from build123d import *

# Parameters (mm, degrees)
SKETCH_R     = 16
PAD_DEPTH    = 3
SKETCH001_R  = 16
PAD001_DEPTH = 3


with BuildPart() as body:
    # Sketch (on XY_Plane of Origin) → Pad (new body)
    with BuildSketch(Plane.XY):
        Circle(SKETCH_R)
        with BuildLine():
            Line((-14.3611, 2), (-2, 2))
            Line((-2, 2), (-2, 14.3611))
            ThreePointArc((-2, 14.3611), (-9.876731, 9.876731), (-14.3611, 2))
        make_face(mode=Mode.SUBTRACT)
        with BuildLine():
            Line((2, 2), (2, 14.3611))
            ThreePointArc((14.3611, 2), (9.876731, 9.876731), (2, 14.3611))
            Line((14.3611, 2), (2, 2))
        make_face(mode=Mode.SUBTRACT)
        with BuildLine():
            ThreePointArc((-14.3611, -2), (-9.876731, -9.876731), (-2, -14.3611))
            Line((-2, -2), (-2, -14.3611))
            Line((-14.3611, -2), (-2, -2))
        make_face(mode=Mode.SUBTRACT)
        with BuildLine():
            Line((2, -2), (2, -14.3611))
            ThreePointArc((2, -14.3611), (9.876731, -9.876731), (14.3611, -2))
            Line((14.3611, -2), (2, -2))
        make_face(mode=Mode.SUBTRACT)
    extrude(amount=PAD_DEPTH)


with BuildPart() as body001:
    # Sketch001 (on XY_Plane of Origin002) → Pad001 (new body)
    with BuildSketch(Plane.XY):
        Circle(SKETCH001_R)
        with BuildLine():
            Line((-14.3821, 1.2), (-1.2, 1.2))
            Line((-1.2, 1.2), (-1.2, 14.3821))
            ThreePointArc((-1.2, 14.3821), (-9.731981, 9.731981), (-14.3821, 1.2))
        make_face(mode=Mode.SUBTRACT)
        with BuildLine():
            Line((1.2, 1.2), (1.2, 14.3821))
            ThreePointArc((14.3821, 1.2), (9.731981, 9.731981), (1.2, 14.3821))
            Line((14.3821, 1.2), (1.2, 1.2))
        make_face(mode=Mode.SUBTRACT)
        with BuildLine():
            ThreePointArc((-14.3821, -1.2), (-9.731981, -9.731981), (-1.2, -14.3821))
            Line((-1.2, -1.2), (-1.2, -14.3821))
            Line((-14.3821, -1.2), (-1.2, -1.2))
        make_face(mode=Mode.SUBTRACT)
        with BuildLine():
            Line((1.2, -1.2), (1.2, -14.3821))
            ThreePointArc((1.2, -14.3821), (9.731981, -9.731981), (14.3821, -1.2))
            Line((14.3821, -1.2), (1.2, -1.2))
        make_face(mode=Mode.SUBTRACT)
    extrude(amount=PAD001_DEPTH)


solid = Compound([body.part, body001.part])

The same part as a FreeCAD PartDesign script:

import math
import FreeCAD as App
import Part
import Sketcher

V = App.Vector
Q = App.Units.Quantity

doc = App.newDocument("Part")
params = doc.addObject("Spreadsheet::Sheet", "Params")
for row, (alias, value) in enumerate([
    ("sketch1_diameter", "32 mm"),
    ("pad1_length", "3 mm"),
    ("sketch2_diameter", "32 mm"),
    ("pad2_length", "3 mm"),
], start=1):
    params.set(f"A{row}", alias)
    params.set(f"B{row}", "=" + value)
    params.setAlias(f"B{row}", alias)

body = doc.addObject("PartDesign::Body", "Body")

sketch1 = body.newObject("Sketcher::SketchObject", "Sketch")
sketch1.AttachmentSupport = (doc.getObject("XY_Plane"), [""])
sketch1.MapMode = "FlatFace"
sketch1.addGeometry(Part.Circle(V(0, 0, 0), V(0, 0, 1), 16), False)
sketch1.addGeometry(Part.ArcOfCircle(Part.Circle(V(2.231714, 2.231714, 0), V(0, 0, 1), 17.123927), math.radians(-165.692677), math.radians(-104.307323)), False)
sketch1.addGeometry(Part.LineSegment(V(-14.3611, -2, 0), V(-2, -2, 0)), False)
sketch1.addGeometry(Part.LineSegment(V(-2, -2, 0), V(-2, -14.3611, 0)), False)
sketch1.addGeometry(Part.LineSegment(V(2, -14.3611, 0), V(2, -2, 0)), False)
sketch1.addGeometry(Part.LineSegment(V(2, -2, 0), V(14.3611, -2, 0)), False)
sketch1.addGeometry(Part.ArcOfCircle(Part.Circle(V(-2.231714, 2.231714, 0), V(0, 0, 1), 17.123927), math.radians(-75.692677), math.radians(-14.307323)), False)
sketch1.addGeometry(Part.LineSegment(V(-2, 2, 0), V(-14.3611, 2, 0)), False)
sketch1.addGeometry(Part.ArcOfCircle(Part.Circle(V(2.231714, -2.231714, 0), V(0, 0, 1), 17.123927), math.radians(104.307323), math.radians(165.692677)), False)
sketch1.addGeometry(Part.LineSegment(V(-2, 14.3611, 0), V(-2, 2, 0)), False)
sketch1.addGeometry(Part.LineSegment(V(14.3611, 2, 0), V(2, 2, 0)), False)
sketch1.addGeometry(Part.LineSegment(V(2, 2, 0), V(2, 14.3611, 0)), False)
sketch1.addGeometry(Part.ArcOfCircle(Part.Circle(V(-2.231714, -2.231714, 0), V(0, 0, 1), 17.123927), math.radians(14.307323), math.radians(75.692677)), False)
sketch1.addConstraint(Sketcher.Constraint("Coincident", 1, 1, 2, 1))
sketch1.addConstraint(Sketcher.Constraint("Coincident", 2, 2, 3, 1))
sketch1.addConstraint(Sketcher.Constraint("Coincident", 3, 2, 1, 2))
sketch1.addConstraint(Sketcher.Constraint("Coincident", 4, 2, 5, 1))
sketch1.addConstraint(Sketcher.Constraint("Coincident", 5, 2, 6, 2))
sketch1.addConstraint(Sketcher.Constraint("Coincident", 6, 1, 4, 1))
sketch1.addConstraint(Sketcher.Constraint("Coincident", 7, 2, 8, 2))
sketch1.addConstraint(Sketcher.Constraint("Coincident", 8, 1, 9, 1))
sketch1.addConstraint(Sketcher.Constraint("Coincident", 9, 2, 7, 1))
sketch1.addConstraint(Sketcher.Constraint("Coincident", 10, 2, 11, 1))
sketch1.addConstraint(Sketcher.Constraint("Coincident", 11, 2, 12, 2))
sketch1.addConstraint(Sketcher.Constraint("Coincident", 12, 1, 10, 1))
sketch1.addConstraint(Sketcher.Constraint("Horizontal", 2))
sketch1.addConstraint(Sketcher.Constraint("Vertical", 3))
sketch1.addConstraint(Sketcher.Constraint("Vertical", 4))
sketch1.addConstraint(Sketcher.Constraint("Horizontal", 5))
sketch1.addConstraint(Sketcher.Constraint("Horizontal", 7))
sketch1.addConstraint(Sketcher.Constraint("Vertical", 9))
sketch1.addConstraint(Sketcher.Constraint("Horizontal", 10))
sketch1.addConstraint(Sketcher.Constraint("Vertical", 11))
sketch1.addConstraint(Sketcher.Constraint("Coincident", 0, 3, -1, 1))
sketch1.addConstraint(Sketcher.Constraint("Equal", 1, 6))
sketch1.addConstraint(Sketcher.Constraint("Equal", 6, 8))
sketch1.addConstraint(Sketcher.Constraint("Equal", 8, 12))
sketch1.addConstraint(Sketcher.Constraint("Symmetric", 6, 3, 8, 3, -1, 1))
sketch1.addConstraint(Sketcher.Constraint("Symmetric", 1, 3, 12, 3, -1, 1))
sketch1.addConstraint(Sketcher.Constraint("Symmetric", 4, 2, 9, 2, -1, 1))
sketch1.addConstraint(Sketcher.Constraint("Symmetric", 2, 2, 10, 2, -1, 1))
sketch1.addConstraint(Sketcher.Constraint("Symmetric", 1, 3, 6, 3, -2))
sketch1.addConstraint(Sketcher.Constraint("Symmetric", 2, 2, 4, 2, -2))
sketch1.addConstraint(Sketcher.Constraint("Equal", 10, 3))
sketch1.addConstraint(Sketcher.Constraint("Diameter", 0, Q("32 mm")))
sketch1.addConstraint(Sketcher.Constraint("DistanceY", 1, 1, -1, 1, Q("2 mm")))
sketch1.addConstraint(Sketcher.Constraint("DistanceX", 2, 2, -1, 1, Q("2 mm")))
sketch1.addConstraint(Sketcher.Constraint("DistanceX", 2, 1, 2, 2, Q("12.3611 mm")))
sketch1.addConstraint(Sketcher.Constraint("Radius", 1, Q("17.123927 mm")))
sketch1.setExpression("Constraints[31]", "Params.sketch1_diameter")
pad1 = body.newObject("PartDesign::Pad", "Pad")
pad1.Profile = sketch1
pad1.setExpression("Length", "Params.pad1_length")
body2 = doc.addObject("PartDesign::Body", "Body001")

sketch2 = body2.newObject("Sketcher::SketchObject", "Sketch001")
sketch2.AttachmentSupport = (doc.getObject("XY_Plane001"), [""])
sketch2.MapMode = "FlatFace"
sketch2.addGeometry(Part.Circle(V(0, 0, 0), V(0, 0, 1), 16), False)
sketch2.addGeometry(Part.ArcOfCircle(Part.Circle(V(2.42949, 2.42949, 0), V(0, 0, 1), 17.198918), math.radians(-167.817271), math.radians(-102.182729)), False)
sketch2.addGeometry(Part.LineSegment(V(-14.3821, -1.2, 0), V(-1.2, -1.2, 0)), False)
sketch2.addGeometry(Part.LineSegment(V(-1.2, -1.2, 0), V(-1.2, -14.3821, 0)), False)
sketch2.addGeometry(Part.LineSegment(V(1.2, -14.3821, 0), V(1.2, -1.2, 0)), False)
sketch2.addGeometry(Part.LineSegment(V(1.2, -1.2, 0), V(14.3821, -1.2, 0)), False)
sketch2.addGeometry(Part.ArcOfCircle(Part.Circle(V(-2.42949, 2.42949, 0), V(0, 0, 1), 17.198918), math.radians(-77.817271), math.radians(-12.182729)), False)
sketch2.addGeometry(Part.LineSegment(V(-1.2, 1.2, 0), V(-14.3821, 1.2, 0)), False)
sketch2.addGeometry(Part.ArcOfCircle(Part.Circle(V(2.42949, -2.42949, 0), V(0, 0, 1), 17.198918), math.radians(102.182729), math.radians(167.817271)), False)
sketch2.addGeometry(Part.LineSegment(V(-1.2, 14.3821, 0), V(-1.2, 1.2, 0)), False)
sketch2.addGeometry(Part.LineSegment(V(14.3821, 1.2, 0), V(1.2, 1.2, 0)), False)
sketch2.addGeometry(Part.LineSegment(V(1.2, 1.2, 0), V(1.2, 14.3821, 0)), False)
sketch2.addGeometry(Part.ArcOfCircle(Part.Circle(V(-2.42949, -2.42949, 0), V(0, 0, 1), 17.198918), math.radians(12.182729), math.radians(77.817271)), False)
sketch2.addConstraint(Sketcher.Constraint("Coincident", 1, 1, 2, 1))
sketch2.addConstraint(Sketcher.Constraint("Coincident", 2, 2, 3, 1))
sketch2.addConstraint(Sketcher.Constraint("Coincident", 3, 2, 1, 2))
sketch2.addConstraint(Sketcher.Constraint("Coincident", 4, 2, 5, 1))
sketch2.addConstraint(Sketcher.Constraint("Coincident", 5, 2, 6, 2))
sketch2.addConstraint(Sketcher.Constraint("Coincident", 6, 1, 4, 1))
sketch2.addConstraint(Sketcher.Constraint("Coincident", 7, 2, 8, 2))
sketch2.addConstraint(Sketcher.Constraint("Coincident", 8, 1, 9, 1))
sketch2.addConstraint(Sketcher.Constraint("Coincident", 9, 2, 7, 1))
sketch2.addConstraint(Sketcher.Constraint("Coincident", 10, 2, 11, 1))
sketch2.addConstraint(Sketcher.Constraint("Coincident", 11, 2, 12, 2))
sketch2.addConstraint(Sketcher.Constraint("Coincident", 12, 1, 10, 1))
sketch2.addConstraint(Sketcher.Constraint("Horizontal", 2))
sketch2.addConstraint(Sketcher.Constraint("Vertical", 3))
sketch2.addConstraint(Sketcher.Constraint("Vertical", 4))
sketch2.addConstraint(Sketcher.Constraint("Horizontal", 5))
sketch2.addConstraint(Sketcher.Constraint("Horizontal", 7))
sketch2.addConstraint(Sketcher.Constraint("Vertical", 9))
sketch2.addConstraint(Sketcher.Constraint("Horizontal", 10))
sketch2.addConstraint(Sketcher.Constraint("Vertical", 11))
sketch2.addConstraint(Sketcher.Constraint("Coincident", 0, 3, -1, 1))
sketch2.addConstraint(Sketcher.Constraint("Equal", 1, 6))
sketch2.addConstraint(Sketcher.Constraint("Equal", 6, 8))
sketch2.addConstraint(Sketcher.Constraint("Equal", 8, 12))
sketch2.addConstraint(Sketcher.Constraint("Symmetric", 6, 3, 8, 3, -1, 1))
sketch2.addConstraint(Sketcher.Constraint("Symmetric", 1, 3, 12, 3, -1, 1))
sketch2.addConstraint(Sketcher.Constraint("Symmetric", 4, 2, 9, 2, -1, 1))
sketch2.addConstraint(Sketcher.Constraint("Symmetric", 2, 2, 10, 2, -1, 1))
sketch2.addConstraint(Sketcher.Constraint("Symmetric", 1, 3, 6, 3, -2))
sketch2.addConstraint(Sketcher.Constraint("Symmetric", 2, 2, 4, 2, -2))
sketch2.addConstraint(Sketcher.Constraint("Equal", 10, 3))
sketch2.addConstraint(Sketcher.Constraint("Diameter", 0, Q("32 mm")))
sketch2.addConstraint(Sketcher.Constraint("DistanceY", 1, 1, -1, 1, Q("1.2 mm")))
sketch2.addConstraint(Sketcher.Constraint("DistanceX", 2, 2, -1, 1, Q("1.2 mm")))
sketch2.addConstraint(Sketcher.Constraint("DistanceX", 2, 1, 2, 2, Q("13.1821 mm")))
sketch2.addConstraint(Sketcher.Constraint("Radius", 1, Q("17.198918 mm")))
sketch2.setExpression("Constraints[31]", "Params.sketch2_diameter")
pad2 = body2.newObject("PartDesign::Pad", "Pad001")
pad2.Profile = sketch2
pad2.setExpression("Length", "Params.pad2_length")

doc.recompute()
